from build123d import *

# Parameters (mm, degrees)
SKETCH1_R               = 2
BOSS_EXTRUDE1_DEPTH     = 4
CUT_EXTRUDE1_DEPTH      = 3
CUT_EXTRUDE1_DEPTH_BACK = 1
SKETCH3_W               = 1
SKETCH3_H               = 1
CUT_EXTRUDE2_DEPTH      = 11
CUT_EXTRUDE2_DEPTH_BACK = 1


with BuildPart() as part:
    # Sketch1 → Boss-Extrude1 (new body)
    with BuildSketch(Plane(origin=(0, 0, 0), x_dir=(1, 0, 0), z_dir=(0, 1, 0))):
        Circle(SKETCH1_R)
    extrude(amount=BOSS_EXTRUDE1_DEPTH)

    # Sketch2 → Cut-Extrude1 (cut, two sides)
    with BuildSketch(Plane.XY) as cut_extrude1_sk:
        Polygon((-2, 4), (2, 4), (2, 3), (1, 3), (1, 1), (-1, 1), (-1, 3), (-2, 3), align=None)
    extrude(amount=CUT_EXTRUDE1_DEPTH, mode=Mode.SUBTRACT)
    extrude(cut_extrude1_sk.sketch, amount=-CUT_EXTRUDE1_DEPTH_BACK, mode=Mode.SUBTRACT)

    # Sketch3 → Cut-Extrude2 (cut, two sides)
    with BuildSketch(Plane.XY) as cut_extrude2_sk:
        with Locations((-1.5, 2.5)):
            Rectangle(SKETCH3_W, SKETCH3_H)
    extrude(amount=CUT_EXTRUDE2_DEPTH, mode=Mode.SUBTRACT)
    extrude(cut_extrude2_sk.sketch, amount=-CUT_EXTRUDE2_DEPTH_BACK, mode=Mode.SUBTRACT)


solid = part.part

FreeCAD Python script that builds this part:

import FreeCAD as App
import Part
import Sketcher
from FreeCAD import Vector


def add_polygon(sketch, points):
    """Adds a closed chain of lines whose ends are joined by coincident constraints."""
    first, n = sketch.GeometryCount, len(points)
    for a, b in zip(points, points[1:] + points[:1]):
        sketch.addGeometry(Part.LineSegment(App.Vector(*a, 0), App.Vector(*b, 0)), False)
    for i in range(n):
        sketch.addConstraint(Sketcher.Constraint("Coincident", first + i, 2, first + (i + 1) % n, 1))

doc = App.newDocument("Part")
body = doc.addObject("PartDesign::Body", "Body")

sketch1 = body.newObject("Sketcher::SketchObject", "Sketch")
sketch1.AttachmentSupport = (doc.getObject("XZ_Plane"), [""])
sketch1.MapMode = "FlatFace"
sketch1.addGeometry(Part.Circle(Vector(0, 0, 0), Vector(0, 0, 1), 2), False)
sketch1.addConstraint(Sketcher.Constraint("Coincident", 0, 3, -1, 1))
sketch1.addConstraint(Sketcher.Constraint("Diameter", 0, 4.0))
pad1 = body.newObject("PartDesign::Pad", "Pad")
pad1.Profile = sketch1
pad1.Length = 4
pad1.Reversed = True

sketch2 = body.newObject("Sketcher::SketchObject", "Sketch001")
sketch2.AttachmentSupport = (doc.getObject("XY_Plane"), [""])
sketch2.MapMode = "FlatFace"
add_polygon(sketch2, [(2, 4), (-2, 4), (-2, 3), (-1, 3), (-1, 1), (1, 1), (1, 3), (2, 3)])
sketch2.addConstraint(Sketcher.Constraint("Horizontal", 0))
sketch2.addConstraint(Sketcher.Constraint("Vertical", 1))
sketch2.addConstraint(Sketcher.Constraint("Horizontal", 2))
sketch2.addConstraint(Sketcher.Constraint("Vertical", 3))
sketch2.addConstraint(Sketcher.Constraint("Horizontal", 4))
sketch2.addConstraint(Sketcher.Constraint("Vertical", 5))
sketch2.addConstraint(Sketcher.Constraint("Horizontal", 6))
sketch2.addConstraint(Sketcher.Constraint("Vertical", 7))
sketch2.addConstraint(Sketcher.Constraint("Symmetric", 2, 2, 5, 2, -2))
sketch2.addConstraint(Sketcher.Constraint("Equal", 2, 6))
sketch2.addConstraint(Sketcher.Constraint("Equal", 6, 1))
sketch2.addConstraint(Sketcher.Constraint("Equal", 4, 3))
sketch2.addConstraint(Sketcher.Constraint("DistanceX", 0, 2, 0, 1, 4.0))
sketch2.addConstraint(Sketcher.Constraint("DistanceX", 2, 1, 2, 2, 1.0))
sketch2.addConstraint(Sketcher.Constraint("DistanceY", -1, 1, 0, 2, 4.0))
pocket1 = body.newObject("PartDesign::Pocket", "Pocket")
pocket1.Profile = sketch2
pocket1.Type = "TwoLengths"
pocket1.Length = 3
pocket1.Length2 = 1
pocket1.Reversed = True

sketch3 = body.newObject("Sketcher::SketchObject", "Sketch002")
sketch3.AttachmentSupport = (doc.getObject("XY_Plane"), [""])
sketch3.MapMode = "FlatFace"
add_polygon(sketch3, [(-2, 3), (-2, 2), (-1, 2), (-1, 3)])
sketch3.addConstraint(Sketcher.Constraint("Vertical", 0))
sketch3.addConstraint(Sketcher.Constraint("Horizontal", 1))
sketch3.addConstraint(Sketcher.Constraint("Vertical", 2))
sketch3.addConstraint(Sketcher.Constraint("Horizontal", 3))
sketch3.addConstraint(Sketcher.Constraint("Equal", 3, 0))
sketch3.addConstraint(Sketcher.Constraint("DistanceX", 1, 1, 1, 2, 1.0))
sketch3.addConstraint(Sketcher.Constraint("DistanceX", 0, 2, -1, 1, 2.0))
sketch3.addConstraint(Sketcher.Constraint("DistanceY", -1, 1, 0, 2, 2.0))
pocket2 = body.newObject("PartDesign::Pocket", "Pocket001")
pocket2.Profile = sketch3
pocket2.Type = "TwoLengths"
pocket2.Length = 11
pocket2.Length2 = 1
pocket2.Reversed = True

doc.recompute()
